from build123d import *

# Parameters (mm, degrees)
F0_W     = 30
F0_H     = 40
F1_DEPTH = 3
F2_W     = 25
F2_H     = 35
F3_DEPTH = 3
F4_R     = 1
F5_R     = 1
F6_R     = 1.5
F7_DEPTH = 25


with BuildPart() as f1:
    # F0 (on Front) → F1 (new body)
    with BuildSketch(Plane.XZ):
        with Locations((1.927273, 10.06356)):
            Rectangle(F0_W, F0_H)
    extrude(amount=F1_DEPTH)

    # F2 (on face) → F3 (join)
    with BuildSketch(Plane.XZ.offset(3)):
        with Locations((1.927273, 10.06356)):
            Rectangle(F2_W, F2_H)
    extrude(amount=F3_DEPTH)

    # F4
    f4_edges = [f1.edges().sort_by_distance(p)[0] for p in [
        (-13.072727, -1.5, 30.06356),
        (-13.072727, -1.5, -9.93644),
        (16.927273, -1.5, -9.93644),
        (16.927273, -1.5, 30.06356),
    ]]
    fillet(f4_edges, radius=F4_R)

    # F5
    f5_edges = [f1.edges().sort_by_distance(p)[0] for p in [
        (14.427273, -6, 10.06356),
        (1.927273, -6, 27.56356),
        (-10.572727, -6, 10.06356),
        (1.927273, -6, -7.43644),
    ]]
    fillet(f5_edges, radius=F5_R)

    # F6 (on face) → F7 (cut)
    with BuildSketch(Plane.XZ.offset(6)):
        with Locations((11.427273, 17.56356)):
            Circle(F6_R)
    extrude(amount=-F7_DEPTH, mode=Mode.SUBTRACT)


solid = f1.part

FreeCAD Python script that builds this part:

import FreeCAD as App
import Part
import Sketcher


def edges_at(feature, points):
    """Names of the edges that pass closest to the given points."""
    edges = feature.Shape.Edges
    near = lambda p: min(range(len(edges)), key=lambda i: edges[i].distToShape(Part.Vertex(*p))[0])
    return sorted({f"Edge{near(p) + 1}" for p in points})


def add_polygon(sketch, points):
    """Adds a closed chain of lines whose ends are joined by coincident constraints."""
    first, n = sketch.GeometryCount, len(points)
    for a, b in zip(points, points[1:] + points[:1]):
        sketch.addGeometry(Part.LineSegment(App.Vector(*a, 0), App.Vector(*b, 0)), False)
    for i in range(n):
        sketch.addConstraint(Sketcher.Constraint("Coincident", first + i, 2, first + (i + 1) % n, 1))

doc = App.newDocument("Part")
body = doc.addObject("PartDesign::Body", "Body")

sketch1 = body.newObject("Sketcher::SketchObject", "Sketch")
sketch1.AttachmentSupport = (doc.getObject("XZ_Plane"), [""])
sketch1.MapMode = "FlatFace"
add_polygon(sketch1, [(-13.072727, 30.06356), (-13.072727, -9.93644), (16.927273, -9.93644), (16.927273, 30.06356)])
sketch1.addConstraint(Sketcher.Constraint("Vertical", 0))
sketch1.addConstraint(Sketcher.Constraint("Horizontal", 1))
sketch1.addConstraint(Sketcher.Constraint("Vertical", 2))
sketch1.addConstraint(Sketcher.Constraint("Horizontal", 3))
sketch1.addConstraint(Sketcher.Constraint("DistanceX", 1, 1, 1, 2, 30.0))
sketch1.addConstraint(Sketcher.Constraint("DistanceY", 0, 2, 0, 1, 40.0))
sketch1.addConstraint(Sketcher.Constraint("DistanceY", 0, 2, -1, 1, 9.93644))
sketch1.addConstraint(Sketcher.Constraint("DistanceX", 0, 2, -1, 1, 13.072727))
pad1 = body.newObject("PartDesign::Pad", "Pad")
pad1.Profile = sketch1
pad1.Length = 3

sketch2 = body.newObject("Sketcher::SketchObject", "Sketch001")
sketch2.AttachmentSupport = (doc.getObject("XZ_Plane"), [""])
sketch2.MapMode = "FlatFace"
sketch2.AttachmentOffset = App.Placement(App.Vector(0, 0, 3), App.Rotation())
add_polygon(sketch2, [(-10.572727, 27.56356), (-10.572727, -7.43644), (14.427273, -7.43644), (14.427273, 27.56356)])
sketch2.addConstraint(Sketcher.Constraint("Vertical", 0))
sketch2.addConstraint(Sketcher.Constraint("Horizontal", 1))
sketch2.addConstraint(Sketcher.Constraint("Vertical", 2))
sketch2.addConstraint(Sketcher.Constraint("Horizontal", 3))
sketch2.addConstraint(Sketcher.Constraint("DistanceX", 1, 1, 1, 2, 25.0))
sketch2.addConstraint(Sketcher.Constraint("DistanceY", 0, 2, 0, 1, 35.0))
sketch2.addConstraint(Sketcher.Constraint("DistanceY", 0, 2, -1, 1, 7.43644))
sketch2.addConstraint(Sketcher.Constraint("DistanceX", 0, 2, -1, 1, 10.572727))
pad2 = body.newObject("PartDesign::Pad", "Pad001")
pad2.Profile = sketch2
pad2.Length = 3
doc.recompute()

fillet = body.newObject("PartDesign::Fillet", "Fillet")
fillet.Base = (pad2, edges_at(pad2, [
    (-13.073, -1.5, 30.064),
    (-13.073, -1.5, -9.936),
    (16.927, -1.5, -9.936),
    (16.927, -1.5, 30.064),
]))
fillet.Radius = 1
doc.recompute()

fillet2 = body.newObject("PartDesign::Fillet", "Fillet001")
fillet2.Base = (fillet, edges_at(fillet, [
    (14.427, -6, 10.064),
    (1.927, -6, 27.564),
    (-10.573, -6, 10.064),
    (1.927, -6, -7.436),
]))
fillet2.Radius = 1

sketch3 = body.newObject("Sketcher::SketchObject", "Sketch002")
sketch3.AttachmentSupport = (doc.getObject("XZ_Plane"), [""])
sketch3.MapMode = "FlatFace"
sketch3.AttachmentOffset = App.Placement(App.Vector(0, 0, 6), App.Rotation())
sketch3.addGeometry(Part.Circle(App.Vector(11.427273, 17.56356, 0), App.Vector(0, 0, 1), 1.5), False)
sketch3.addConstraint(Sketcher.Constraint("Diameter", 0, 3.0))
sketch3.addConstraint(Sketcher.Constraint("DistanceY", -1, 1, 0, 3, 17.56356))
sketch3.addConstraint(Sketcher.Constraint("DistanceX", -1, 1, 0, 3, 11.427273))
pocket1 = body.newObject("PartDesign::Pocket", "Pocket")
pocket1.Profile = sketch3
pocket1.Length = 25

doc.recompute()
